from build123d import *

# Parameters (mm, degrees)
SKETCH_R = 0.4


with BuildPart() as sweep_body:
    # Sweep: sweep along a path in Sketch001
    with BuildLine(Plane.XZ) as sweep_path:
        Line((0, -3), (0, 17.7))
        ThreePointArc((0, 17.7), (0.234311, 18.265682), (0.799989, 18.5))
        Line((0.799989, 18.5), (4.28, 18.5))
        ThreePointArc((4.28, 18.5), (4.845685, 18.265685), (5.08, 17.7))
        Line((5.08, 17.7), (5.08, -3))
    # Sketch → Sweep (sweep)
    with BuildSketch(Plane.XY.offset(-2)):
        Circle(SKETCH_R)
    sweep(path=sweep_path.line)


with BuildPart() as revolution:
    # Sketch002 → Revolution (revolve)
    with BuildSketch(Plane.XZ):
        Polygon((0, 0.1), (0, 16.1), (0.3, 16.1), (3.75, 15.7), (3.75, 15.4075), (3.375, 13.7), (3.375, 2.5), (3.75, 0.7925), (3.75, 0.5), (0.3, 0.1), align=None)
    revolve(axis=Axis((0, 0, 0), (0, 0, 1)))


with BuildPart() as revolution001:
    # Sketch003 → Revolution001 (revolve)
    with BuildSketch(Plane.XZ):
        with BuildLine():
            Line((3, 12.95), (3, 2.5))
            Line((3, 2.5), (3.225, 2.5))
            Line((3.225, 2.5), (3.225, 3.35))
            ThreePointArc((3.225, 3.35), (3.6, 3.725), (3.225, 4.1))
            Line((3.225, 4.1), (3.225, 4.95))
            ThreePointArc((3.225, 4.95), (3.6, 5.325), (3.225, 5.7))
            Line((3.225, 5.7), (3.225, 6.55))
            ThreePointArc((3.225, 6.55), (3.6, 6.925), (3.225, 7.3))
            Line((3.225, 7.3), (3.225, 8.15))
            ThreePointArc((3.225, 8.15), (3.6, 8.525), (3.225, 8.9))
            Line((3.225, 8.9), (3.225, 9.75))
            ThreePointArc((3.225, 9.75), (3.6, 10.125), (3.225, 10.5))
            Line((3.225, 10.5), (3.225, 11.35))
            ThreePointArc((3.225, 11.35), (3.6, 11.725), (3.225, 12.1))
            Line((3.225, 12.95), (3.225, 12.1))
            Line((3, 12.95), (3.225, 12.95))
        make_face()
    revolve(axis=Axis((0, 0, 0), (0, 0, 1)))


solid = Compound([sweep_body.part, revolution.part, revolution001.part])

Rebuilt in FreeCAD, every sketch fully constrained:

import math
import FreeCAD as App
import Part
import Sketcher

V = App.Vector
Q = App.Units.Quantity

doc = App.newDocument("Part")
body = doc.addObject("PartDesign::Body", "Body")

# Sketch on XY plane
sketch1 = body.newObject("Sketcher::SketchObject", "Sketch")
sketch1.AttachmentSupport = (doc.getObject("XY_Plane"), [""])
sketch1.MapMode = "FlatFace"
sketch1.AttachmentOffset = App.Placement(V(0, 0, -2), App.Rotation())
sketch1.addGeometry(Part.Circle(V(0, 0, 0), V(0, 0, 1), 0.4), False)
sketch1.addConstraint([
    Sketcher.Constraint("Coincident", 0, 3, -1, 1),
    Sketcher.Constraint("Diameter", 0, Q("0.8 mm")),
])

# Sketch on XZ plane
sketch2 = body.newObject("Sketcher::SketchObject", "Sketch001")
sketch2.AttachmentSupport = (doc.getObject("XZ_Plane"), [""])
sketch2.MapMode = "FlatFace"
sketch2.addGeometry([
    Part.LineSegment(V(0, -3, 0), V(0, 17.7, 0)),  # 0
    Part.ArcOfCircle(Part.Circle(V(0.8, 17.7, 0), V(0, 0, 1), 0.8), math.radians(90), math.radians(180)),  # 1
    Part.LineSegment(V(0.8, 18.5, 0), V(4.3, 18.5, 0)),  # 2
    Part.ArcOfCircle(Part.Circle(V(4.3, 17.7, 0), V(0, 0, 1), 0.8), math.radians(0), math.radians(90)),  # 3
    Part.LineSegment(V(5.1, 17.7, 0), V(5.1, -3, 0)),  # 4
], False)
sketch2.addConstraint([
    Sketcher.Constraint("Tangent", 0, 2, 1, 2),
    Sketcher.Constraint("Coincident", 1, 1, 2, 1),
    Sketcher.Constraint("Tangent", 2, 2, 3, 2),
    Sketcher.Constraint("Tangent", 3, 1, 4, 1),
    Sketcher.Constraint("Vertical", 0),
    Sketcher.Constraint("Horizontal", 2),
    Sketcher.Constraint("Vertical", 4),
    Sketcher.Constraint("Equal", 1, 3),
    Sketcher.Constraint("PointOnObject", 0, 1, -2),
    Sketcher.Constraint("Horizontal", 0, 1, 4, 2),
    Sketcher.Constraint("Radius", 1, Q("0.8 mm")),
    Sketcher.Constraint("DistanceY", 0, 1, 0, 2, Q("20.7 mm")),
    Sketcher.Constraint("DistanceY", 0, 1, -1, 1, Q("3 mm")),
    Sketcher.Constraint("DistanceX", -1, 1, 3, 3, Q("4.279999 mm")),
    Sketcher.Constraint("DistanceX", 2, 1, 2, 2, Q("3.480011 mm")),
])
doc.recompute()

additivepipe = body.newObject("PartDesign::AdditivePipe", "AdditivePipe")
additivepipe.Profile = sketch1
additivepipe.Spine = (sketch2, ["Edge1", "Edge2", "Edge3", "Edge4", "Edge5"])
body2 = doc.addObject("PartDesign::Body", "Body001")

# Sketch on XZ plane
sketch3 = body2.newObject("Sketcher::SketchObject", "Sketch002")
sketch3.AttachmentSupport = (doc.getObject("XZ_Plane001"), [""])
sketch3.MapMode = "FlatFace"
sketch3.addGeometry([
    Part.LineSegment(V(0, 16.1, 0), V(0, 0.1, 0)),  # 0
    Part.LineSegment(V(0, 0.1, 0), V(0.3, 0.1, 0)),  # 1
    Part.LineSegment(V(0.3, 0.1, 0), V(3.75, 0.5, 0)),  # 2
    Part.LineSegment(V(3.75, 0.5, 0), V(3.75, 0.79, 0)),  # 3
    Part.LineSegment(V(3.75, 0.79, 0), V(3.38, 2.5, 0)),  # 4
    Part.LineSegment(V(3.38, 2.5, 0), V(3.38, 13.7, 0)),  # 5
    Part.LineSegment(V(3.38, 13.7, 0), V(3.75, 15.41, 0)),  # 6
    Part.LineSegment(V(3.75, 15.41, 0), V(3.75, 15.7, 0)),  # 7
    Part.LineSegment(V(3.75, 15.7, 0), V(0.3, 16.1, 0)),  # 8
    Part.LineSegment(V(0.3, 16.1, 0), V(0, 16.1, 0)),  # 9
], False)
sketch3.addConstraint([
    Sketcher.Constraint("Coincident", 0, 2, 1, 1),
    Sketcher.Constraint("Coincident", 1, 2, 2, 1),
    Sketcher.Constraint("Coincident", 2, 2, 3, 1),
    Sketcher.Constraint("Coincident", 3, 2, 4, 1),
    Sketcher.Constraint("Coincident", 4, 2, 5, 1),
    Sketcher.Constraint("Coincident", 5, 2, 6, 1),
    Sketcher.Constraint("Coincident", 6, 2, 7, 1),
    Sketcher.Constraint("Coincident", 7, 2, 8, 1),
    Sketcher.Constraint("Coincident", 8, 2, 9, 1),
    Sketcher.Constraint("Coincident", 9, 2, 0, 1),
    Sketcher.Constraint("Vertical", 0),
    Sketcher.Constraint("Horizontal", 1),
    Sketcher.Constraint("Vertical", 3),
    Sketcher.Constraint("Vertical", 5),
    Sketcher.Constraint("Vertical", 7),
    Sketcher.Constraint("Horizontal", 9),
    Sketcher.Constraint("PointOnObject", 0, 2, -2),
    Sketcher.Constraint("Vertical", 3, 2, 6, 2),
    Sketcher.Constraint("Vertical", 1, 2, 8, 2),
    Sketcher.Constraint("Equal", 3, 7),
    Sketcher.Constraint("Equal", 4, 6),
    Sketcher.Constraint("Equal", 2, 8),
    Sketcher.Constraint("DistanceY", 0, 2, 0, 1, Q("16 mm")),
    Sketcher.Constraint("DistanceX", 1, 1, 1, 2, Q("0.3 mm")),
    Sketcher.Constraint("DistanceY", 5, 1, 5, 2, Q("11.2 mm")),
    Sketcher.Constraint("DistanceY", 2, 2, 4, 2, Q("2 mm")),
    Sketcher.Constraint("DistanceY", -1, 1, 0, 2, Q("0.1 mm")),
    Sketcher.Constraint("DistanceX", -1, 1, 2, 2, Q("3.75 mm")),
    Sketcher.Constraint("DistanceY", 3, 1, 3, 2, Q("0.2925 mm")),
    Sketcher.Constraint("DistanceX", -1, 1, 4, 2, Q("3.375 mm")),
])
revolution = body2.newObject("PartDesign::Revolution", "Revolution")
revolution.Profile = sketch3
revolution.ReferenceAxis = (sketch3, ["V_Axis"])
revolution.Angle = 360
body3 = doc.addObject("PartDesign::Body", "Body002")

# Sketch on XZ plane
sketch4 = body3.newObject("Sketcher::SketchObject", "Sketch003")
sketch4.AttachmentSupport = (doc.getObject("XZ_Plane002"), [""])
sketch4.MapMode = "FlatFace"
sketch4.addGeometry([
    Part.LineSegment(V(3, 12.95, 0), V(3, 2.5, 0)),  # 0
    Part.LineSegment(V(3, 2.5, 0), V(3.23, 2.5, 0)),  # 1
    Part.LineSegment(V(3.23, 2.5, 0), V(3.23, 3.35, 0)),  # 2
    Part.ArcOfCircle(Part.Circle(V(3.23, 3.73, 0), V(0, 0, 1), 0.38), math.radians(-90), math.radians(90)),  # 3
    Part.LineSegment(V(3.23, 4.1, 0), V(3.23, 4.95, 0)),  # 4
    Part.ArcOfCircle(Part.Circle(V(3.23, 5.33, 0), V(0, 0, 1), 0.38), math.radians(-90), math.radians(90)),  # 5
    Part.LineSegment(V(3.23, 5.7, 0), V(3.23, 6.55, 0)),  # 6
    Part.ArcOfCircle(Part.Circle(V(3.23, 6.92, 0), V(0, 0, 1), 0.38), math.radians(-90), math.radians(90)),  # 7
    Part.LineSegment(V(3.23, 7.3, 0), V(3.23, 8.15, 0)),  # 8
    Part.ArcOfCircle(Part.Circle(V(3.23, 8.53, 0), V(0, 0, 1), 0.38), math.radians(-90), math.radians(90)),  # 9
    Part.LineSegment(V(3.23, 8.9, 0), V(3.23, 9.75, 0)),  # 10
    Part.ArcOfCircle(Part.Circle(V(3.23, 10.12, 0), V(0, 0, 1), 0.38), math.radians(-90), math.radians(90)),  # 11
    Part.LineSegment(V(3.23, 10.5, 0), V(3.23, 11.35, 0)),  # 12
    Part.ArcOfCircle(Part.Circle(V(3.23, 11.72, 0), V(0, 0, 1), 0.38), math.radians(-90), math.radians(90)),  # 13
    Part.LineSegment(V(3.23, 12.1, 0), V(3.23, 12.95, 0)),  # 14
    Part.LineSegment(V(3.23, 12.95, 0), V(3, 12.95, 0)),  # 15
], False)
sketch4.addConstraint([
    Sketcher.Constraint("Coincident", 0, 2, 1, 1),
    Sketcher.Constraint("Coincident", 1, 2, 2, 1),
    Sketcher.Constraint("Coincident", 2, 2, 3, 1),
    Sketcher.Constraint("Coincident", 3, 2, 4, 1),
    Sketcher.Constraint("Coincident", 4, 2, 5, 1),
    Sketcher.Constraint("Coincident", 5, 2, 6, 1),
    Sketcher.Constraint("Coincident", 6, 2, 7, 1),
    Sketcher.Constraint("Coincident", 7, 2, 8, 1),
    Sketcher.Constraint("Coincident", 8, 2, 9, 1),
    Sketcher.Constraint("Coincident", 9, 2, 10, 1),
    Sketcher.Constraint("Coincident", 10, 2, 11, 1),
    Sketcher.Constraint("Coincident", 11, 2, 12, 1),
    Sketcher.Constraint("Coincident", 12, 2, 13, 1),
    Sketcher.Constraint("Coincident", 13, 2, 14, 1),
    Sketcher.Constraint("Coincident", 14, 2, 15, 1),
    Sketcher.Constraint("Coincident", 15, 2, 0, 1),
    Sketcher.Constraint("Vertical", 0),
    Sketcher.Constraint("Horizontal", 1),
    Sketcher.Constraint("Vertical", 2),
    Sketcher.Constraint("Vertical", 4),
    Sketcher.Constraint("Vertical", 6),
    Sketcher.Constraint("Vertical", 8),
    Sketcher.Constraint("Vertical", 10),
    Sketcher.Constraint("Vertical", 12),
    Sketcher.Constraint("Vertical", 14),
    Sketcher.Constraint("Horizontal", 15),
    Sketcher.Constraint("Equal", 3, 5),
    Sketcher.Constraint("Equal", 5, 7),
    Sketcher.Constraint("Equal", 7, 9),
    Sketcher.Constraint("Equal", 9, 11),
    Sketcher.Constraint("Equal", 11, 13),
    Sketcher.Constraint("Vertical", 3, 3, 5, 3),
    Sketcher.Constraint("Vertical", 5, 3, 7, 3),
    Sketcher.Constraint("Vertical", 7, 3, 9, 3),
    Sketcher.Constraint("Vertical", 9, 3, 11, 3),
    Sketcher.Constraint("Vertical", 11, 3, 13, 3),
    Sketcher.Constraint("Vertical", 13, 3, 1, 2),
    Sketcher.Constraint("Vertical", 2, 2, 3, 2),
    Sketcher.Constraint("Vertical", 4, 2, 5, 2),
    Sketcher.Constraint("Vertical", 6, 2, 7, 2),
    Sketcher.Constraint("Vertical", 8, 2, 9, 2),
    Sketcher.Constraint("Vertical", 10, 2, 11, 2),
    Sketcher.Constraint("Vertical", 12, 2, 13, 2),
    Sketcher.Constraint("Equal", 2, 4),
    Sketcher.Constraint("Equal", 4, 6),
    Sketcher.Constraint("Equal", 6, 8),
    Sketcher.Constraint("Equal", 8, 10),
    Sketcher.Constraint("Equal", 10, 12),
    Sketcher.Constraint("Equal", 12, 14),
    Sketcher.Constraint("DistanceX", -1, 1, 0, 2, Q("3 mm")),
    Sketcher.Constraint("Radius", 3, Q("0.375 mm")),
    Sketcher.Constraint("DistanceY", 3, 3, 13, 3, Q("8 mm")),
    Sketcher.Constraint("DistanceY", -1, 1, 0, 2, Q("2.5 mm")),
    Sketcher.Constraint("DistanceX", 1, 1, 1, 2, Q("0.225 mm")),
])
revolution2 = body3.newObject("PartDesign::Revolution", "Revolution001")
revolution2.Profile = sketch4
revolution2.ReferenceAxis = (sketch4, ["V_Axis"])
revolution2.Angle = 360

doc.recompute()
